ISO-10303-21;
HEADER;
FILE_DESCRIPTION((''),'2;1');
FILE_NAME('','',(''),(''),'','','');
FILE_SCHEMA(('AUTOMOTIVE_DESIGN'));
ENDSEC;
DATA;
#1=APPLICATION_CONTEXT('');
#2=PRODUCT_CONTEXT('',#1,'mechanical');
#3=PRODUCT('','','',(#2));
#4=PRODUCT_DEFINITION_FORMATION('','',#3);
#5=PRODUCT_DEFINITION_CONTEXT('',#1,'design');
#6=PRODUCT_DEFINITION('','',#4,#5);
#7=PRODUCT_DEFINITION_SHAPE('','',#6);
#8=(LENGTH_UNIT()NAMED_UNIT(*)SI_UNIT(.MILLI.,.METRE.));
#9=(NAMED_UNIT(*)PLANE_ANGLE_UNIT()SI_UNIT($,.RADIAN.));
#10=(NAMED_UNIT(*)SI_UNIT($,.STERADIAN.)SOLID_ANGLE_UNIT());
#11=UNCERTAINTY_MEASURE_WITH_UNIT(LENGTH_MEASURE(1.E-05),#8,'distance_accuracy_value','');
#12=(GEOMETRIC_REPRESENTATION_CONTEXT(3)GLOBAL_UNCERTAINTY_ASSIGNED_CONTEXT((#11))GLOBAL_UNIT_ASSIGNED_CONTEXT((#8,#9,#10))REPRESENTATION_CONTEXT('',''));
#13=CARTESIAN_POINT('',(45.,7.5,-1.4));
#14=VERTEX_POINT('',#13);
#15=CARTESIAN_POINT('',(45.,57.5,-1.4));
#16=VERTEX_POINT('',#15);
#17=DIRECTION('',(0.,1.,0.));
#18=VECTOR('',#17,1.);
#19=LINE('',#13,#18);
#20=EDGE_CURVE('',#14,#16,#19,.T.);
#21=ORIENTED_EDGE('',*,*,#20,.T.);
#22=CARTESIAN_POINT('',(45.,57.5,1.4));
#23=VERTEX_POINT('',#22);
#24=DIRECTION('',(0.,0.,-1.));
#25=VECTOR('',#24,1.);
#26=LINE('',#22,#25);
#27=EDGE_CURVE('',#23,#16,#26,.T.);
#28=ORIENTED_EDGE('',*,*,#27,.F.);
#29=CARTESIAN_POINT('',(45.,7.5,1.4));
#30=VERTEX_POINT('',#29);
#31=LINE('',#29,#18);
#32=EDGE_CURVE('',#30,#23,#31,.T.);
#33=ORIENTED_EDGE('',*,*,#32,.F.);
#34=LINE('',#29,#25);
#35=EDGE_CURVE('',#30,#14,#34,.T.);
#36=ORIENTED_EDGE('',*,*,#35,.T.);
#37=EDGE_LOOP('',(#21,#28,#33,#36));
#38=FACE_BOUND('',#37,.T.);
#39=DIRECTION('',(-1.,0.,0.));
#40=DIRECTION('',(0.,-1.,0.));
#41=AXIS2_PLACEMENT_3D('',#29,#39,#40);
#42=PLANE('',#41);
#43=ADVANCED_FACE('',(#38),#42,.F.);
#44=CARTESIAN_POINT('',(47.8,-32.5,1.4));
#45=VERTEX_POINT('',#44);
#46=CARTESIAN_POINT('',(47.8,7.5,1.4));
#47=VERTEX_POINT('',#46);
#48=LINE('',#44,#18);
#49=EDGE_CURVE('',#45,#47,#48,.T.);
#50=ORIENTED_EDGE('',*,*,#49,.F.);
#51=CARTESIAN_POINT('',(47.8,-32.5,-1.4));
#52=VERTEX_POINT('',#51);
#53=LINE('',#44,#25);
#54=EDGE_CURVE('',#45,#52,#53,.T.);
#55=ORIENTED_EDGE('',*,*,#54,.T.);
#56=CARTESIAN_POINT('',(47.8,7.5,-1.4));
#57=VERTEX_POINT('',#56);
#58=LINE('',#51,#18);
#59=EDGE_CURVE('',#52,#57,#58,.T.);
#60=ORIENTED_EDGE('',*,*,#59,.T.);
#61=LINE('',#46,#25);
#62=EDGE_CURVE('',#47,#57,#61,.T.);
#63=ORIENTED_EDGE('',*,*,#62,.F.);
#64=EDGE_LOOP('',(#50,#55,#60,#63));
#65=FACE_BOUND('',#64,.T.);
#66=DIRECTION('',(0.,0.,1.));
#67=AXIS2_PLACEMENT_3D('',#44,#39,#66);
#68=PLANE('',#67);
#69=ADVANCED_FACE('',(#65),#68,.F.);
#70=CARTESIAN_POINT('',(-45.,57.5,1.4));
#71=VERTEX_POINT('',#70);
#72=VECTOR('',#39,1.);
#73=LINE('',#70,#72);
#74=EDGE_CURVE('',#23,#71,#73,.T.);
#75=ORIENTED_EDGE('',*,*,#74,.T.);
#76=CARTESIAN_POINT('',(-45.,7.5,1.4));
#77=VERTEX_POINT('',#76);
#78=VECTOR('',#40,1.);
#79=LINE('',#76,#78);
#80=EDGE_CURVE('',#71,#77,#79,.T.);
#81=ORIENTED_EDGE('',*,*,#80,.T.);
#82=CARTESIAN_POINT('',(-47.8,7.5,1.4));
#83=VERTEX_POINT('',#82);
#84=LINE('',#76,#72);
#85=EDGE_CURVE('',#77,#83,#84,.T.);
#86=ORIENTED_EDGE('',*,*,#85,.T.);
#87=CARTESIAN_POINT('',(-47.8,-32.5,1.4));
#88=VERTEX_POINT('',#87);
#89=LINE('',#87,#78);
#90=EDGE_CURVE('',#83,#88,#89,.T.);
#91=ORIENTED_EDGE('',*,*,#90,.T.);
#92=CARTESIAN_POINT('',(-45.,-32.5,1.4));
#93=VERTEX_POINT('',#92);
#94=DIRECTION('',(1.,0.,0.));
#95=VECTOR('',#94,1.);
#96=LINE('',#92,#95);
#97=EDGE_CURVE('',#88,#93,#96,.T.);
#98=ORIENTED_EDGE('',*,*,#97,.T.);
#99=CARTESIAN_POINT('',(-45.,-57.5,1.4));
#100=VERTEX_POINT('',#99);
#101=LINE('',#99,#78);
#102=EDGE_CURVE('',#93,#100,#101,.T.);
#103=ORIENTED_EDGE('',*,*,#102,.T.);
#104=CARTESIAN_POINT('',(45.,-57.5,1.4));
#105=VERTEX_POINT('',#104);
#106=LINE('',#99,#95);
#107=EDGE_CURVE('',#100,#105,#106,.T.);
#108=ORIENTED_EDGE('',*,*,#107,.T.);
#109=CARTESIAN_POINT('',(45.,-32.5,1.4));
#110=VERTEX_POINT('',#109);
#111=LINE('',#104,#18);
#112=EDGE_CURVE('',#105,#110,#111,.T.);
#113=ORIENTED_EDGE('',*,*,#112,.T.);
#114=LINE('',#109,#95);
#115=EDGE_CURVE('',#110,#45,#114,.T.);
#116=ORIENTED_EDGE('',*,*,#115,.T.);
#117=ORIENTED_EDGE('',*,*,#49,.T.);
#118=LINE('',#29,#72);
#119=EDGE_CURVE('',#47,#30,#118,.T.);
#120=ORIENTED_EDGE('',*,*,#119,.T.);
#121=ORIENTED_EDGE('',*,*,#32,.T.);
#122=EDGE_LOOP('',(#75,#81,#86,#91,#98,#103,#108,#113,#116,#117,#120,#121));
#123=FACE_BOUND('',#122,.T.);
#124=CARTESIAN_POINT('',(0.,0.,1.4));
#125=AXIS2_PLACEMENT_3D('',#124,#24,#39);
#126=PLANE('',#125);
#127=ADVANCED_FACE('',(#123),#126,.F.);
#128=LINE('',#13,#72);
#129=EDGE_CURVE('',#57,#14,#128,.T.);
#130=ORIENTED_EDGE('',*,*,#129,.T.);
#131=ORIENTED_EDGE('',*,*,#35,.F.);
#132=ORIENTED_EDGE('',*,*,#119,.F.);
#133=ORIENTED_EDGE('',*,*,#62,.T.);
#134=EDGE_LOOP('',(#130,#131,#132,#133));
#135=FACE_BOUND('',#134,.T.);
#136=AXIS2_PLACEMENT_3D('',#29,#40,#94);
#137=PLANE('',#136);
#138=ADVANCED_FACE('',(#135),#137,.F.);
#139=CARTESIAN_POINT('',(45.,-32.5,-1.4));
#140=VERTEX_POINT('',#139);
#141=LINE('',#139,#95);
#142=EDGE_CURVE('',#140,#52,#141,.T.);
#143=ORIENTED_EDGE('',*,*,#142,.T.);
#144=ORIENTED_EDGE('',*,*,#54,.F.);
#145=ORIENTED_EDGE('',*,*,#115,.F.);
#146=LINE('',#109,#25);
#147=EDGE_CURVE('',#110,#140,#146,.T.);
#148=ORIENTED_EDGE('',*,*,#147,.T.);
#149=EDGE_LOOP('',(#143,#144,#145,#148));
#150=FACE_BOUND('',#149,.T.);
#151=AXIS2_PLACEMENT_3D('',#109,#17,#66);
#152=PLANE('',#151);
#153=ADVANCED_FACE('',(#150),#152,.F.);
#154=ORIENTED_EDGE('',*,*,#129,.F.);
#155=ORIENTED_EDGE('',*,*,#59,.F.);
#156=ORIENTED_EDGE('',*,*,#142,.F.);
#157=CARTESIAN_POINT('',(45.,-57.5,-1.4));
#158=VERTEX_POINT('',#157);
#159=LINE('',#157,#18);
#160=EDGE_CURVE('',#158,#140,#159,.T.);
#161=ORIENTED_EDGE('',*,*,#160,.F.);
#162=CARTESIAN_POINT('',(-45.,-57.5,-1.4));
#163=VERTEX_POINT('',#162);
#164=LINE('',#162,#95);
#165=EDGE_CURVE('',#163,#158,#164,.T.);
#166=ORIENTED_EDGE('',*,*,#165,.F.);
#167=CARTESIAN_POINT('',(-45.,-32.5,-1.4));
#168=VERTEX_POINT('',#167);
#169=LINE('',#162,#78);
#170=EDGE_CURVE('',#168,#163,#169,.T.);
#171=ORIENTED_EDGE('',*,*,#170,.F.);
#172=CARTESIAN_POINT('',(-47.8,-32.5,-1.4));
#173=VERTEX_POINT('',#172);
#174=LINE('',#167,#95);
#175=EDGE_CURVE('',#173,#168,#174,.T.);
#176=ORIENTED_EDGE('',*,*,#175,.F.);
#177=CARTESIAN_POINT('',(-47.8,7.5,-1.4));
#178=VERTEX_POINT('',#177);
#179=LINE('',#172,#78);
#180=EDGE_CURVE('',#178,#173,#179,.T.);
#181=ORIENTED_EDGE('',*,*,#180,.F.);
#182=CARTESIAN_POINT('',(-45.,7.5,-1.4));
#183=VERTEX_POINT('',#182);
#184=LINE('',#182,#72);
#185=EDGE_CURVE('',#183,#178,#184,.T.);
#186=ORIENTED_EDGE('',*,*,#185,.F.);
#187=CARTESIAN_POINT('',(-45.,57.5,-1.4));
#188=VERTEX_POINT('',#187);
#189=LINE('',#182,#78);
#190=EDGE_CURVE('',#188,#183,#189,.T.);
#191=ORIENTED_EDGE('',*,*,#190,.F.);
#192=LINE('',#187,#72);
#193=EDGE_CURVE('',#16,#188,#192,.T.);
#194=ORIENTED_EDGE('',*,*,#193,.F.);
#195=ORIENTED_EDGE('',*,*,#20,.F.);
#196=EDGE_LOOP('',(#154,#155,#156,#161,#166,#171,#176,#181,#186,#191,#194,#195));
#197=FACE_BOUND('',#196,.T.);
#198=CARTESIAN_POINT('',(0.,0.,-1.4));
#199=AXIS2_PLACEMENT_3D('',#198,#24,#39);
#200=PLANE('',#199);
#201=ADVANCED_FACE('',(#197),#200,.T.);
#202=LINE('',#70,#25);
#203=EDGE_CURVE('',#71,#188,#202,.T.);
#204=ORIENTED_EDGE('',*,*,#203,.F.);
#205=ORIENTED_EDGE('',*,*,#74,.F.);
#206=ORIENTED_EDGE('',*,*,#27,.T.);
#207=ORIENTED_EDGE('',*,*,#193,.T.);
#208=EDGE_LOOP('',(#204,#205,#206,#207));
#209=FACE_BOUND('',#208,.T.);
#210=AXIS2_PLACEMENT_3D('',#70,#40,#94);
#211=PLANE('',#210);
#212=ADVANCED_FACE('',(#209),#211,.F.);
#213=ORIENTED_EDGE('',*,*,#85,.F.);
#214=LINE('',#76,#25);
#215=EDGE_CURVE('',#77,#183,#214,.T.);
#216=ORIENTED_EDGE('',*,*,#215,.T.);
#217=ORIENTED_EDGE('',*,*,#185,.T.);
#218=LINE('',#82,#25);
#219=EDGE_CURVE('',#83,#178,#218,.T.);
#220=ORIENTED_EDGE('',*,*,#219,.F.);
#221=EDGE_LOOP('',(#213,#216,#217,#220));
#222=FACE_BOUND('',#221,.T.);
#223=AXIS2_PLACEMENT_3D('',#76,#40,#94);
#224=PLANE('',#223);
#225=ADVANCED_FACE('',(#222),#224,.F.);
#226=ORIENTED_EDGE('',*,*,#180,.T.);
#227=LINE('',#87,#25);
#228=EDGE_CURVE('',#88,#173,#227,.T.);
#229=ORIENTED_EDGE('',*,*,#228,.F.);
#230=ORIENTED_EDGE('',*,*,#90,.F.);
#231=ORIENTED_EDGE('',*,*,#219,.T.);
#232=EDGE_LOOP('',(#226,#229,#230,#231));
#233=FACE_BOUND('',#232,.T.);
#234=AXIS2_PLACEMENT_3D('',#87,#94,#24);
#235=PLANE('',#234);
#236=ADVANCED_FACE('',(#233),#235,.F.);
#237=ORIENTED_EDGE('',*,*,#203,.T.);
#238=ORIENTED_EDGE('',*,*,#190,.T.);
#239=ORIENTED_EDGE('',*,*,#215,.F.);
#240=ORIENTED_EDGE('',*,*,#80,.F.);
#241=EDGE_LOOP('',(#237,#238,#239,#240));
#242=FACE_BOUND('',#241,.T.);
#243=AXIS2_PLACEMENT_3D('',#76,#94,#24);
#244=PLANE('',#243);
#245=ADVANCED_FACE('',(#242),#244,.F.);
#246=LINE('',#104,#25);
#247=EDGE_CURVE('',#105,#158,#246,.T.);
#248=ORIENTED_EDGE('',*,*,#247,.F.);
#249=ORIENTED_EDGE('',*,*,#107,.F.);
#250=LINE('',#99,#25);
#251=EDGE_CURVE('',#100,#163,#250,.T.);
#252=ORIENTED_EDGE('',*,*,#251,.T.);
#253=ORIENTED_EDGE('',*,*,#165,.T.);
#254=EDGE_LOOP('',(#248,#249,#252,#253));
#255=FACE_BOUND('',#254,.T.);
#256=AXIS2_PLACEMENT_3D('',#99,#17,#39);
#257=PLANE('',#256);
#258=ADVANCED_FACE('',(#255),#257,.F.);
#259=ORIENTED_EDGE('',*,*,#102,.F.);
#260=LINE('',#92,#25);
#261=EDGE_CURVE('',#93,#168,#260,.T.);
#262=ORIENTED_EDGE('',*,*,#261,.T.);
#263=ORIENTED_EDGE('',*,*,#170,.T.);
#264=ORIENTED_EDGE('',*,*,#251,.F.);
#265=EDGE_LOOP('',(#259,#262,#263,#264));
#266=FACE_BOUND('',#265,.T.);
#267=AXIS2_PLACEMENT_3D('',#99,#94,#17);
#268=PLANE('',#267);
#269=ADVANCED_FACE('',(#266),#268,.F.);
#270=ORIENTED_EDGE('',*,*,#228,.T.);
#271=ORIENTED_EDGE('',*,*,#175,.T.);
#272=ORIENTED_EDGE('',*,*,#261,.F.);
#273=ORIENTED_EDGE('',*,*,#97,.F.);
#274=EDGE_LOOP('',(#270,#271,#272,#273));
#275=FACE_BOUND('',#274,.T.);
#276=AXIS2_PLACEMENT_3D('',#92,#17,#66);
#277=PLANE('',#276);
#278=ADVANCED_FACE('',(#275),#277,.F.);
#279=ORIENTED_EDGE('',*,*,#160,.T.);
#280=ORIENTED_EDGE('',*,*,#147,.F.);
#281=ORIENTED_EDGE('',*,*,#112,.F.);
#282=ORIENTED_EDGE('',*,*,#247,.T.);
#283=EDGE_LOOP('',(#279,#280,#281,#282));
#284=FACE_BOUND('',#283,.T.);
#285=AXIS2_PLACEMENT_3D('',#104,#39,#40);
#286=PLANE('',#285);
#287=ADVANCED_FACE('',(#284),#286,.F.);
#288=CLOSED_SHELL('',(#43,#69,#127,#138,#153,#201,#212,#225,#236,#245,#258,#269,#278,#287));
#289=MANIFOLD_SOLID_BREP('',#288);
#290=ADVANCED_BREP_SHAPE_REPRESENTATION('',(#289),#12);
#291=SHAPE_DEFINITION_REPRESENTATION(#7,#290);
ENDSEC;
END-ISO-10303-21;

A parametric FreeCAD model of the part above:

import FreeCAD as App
import Part
import Sketcher
from FreeCAD import Vector


def add_polygon(sketch, points):
    """Adds a closed chain of lines whose ends are joined by coincident constraints."""
    first, n = sketch.GeometryCount, len(points)
    for a, b in zip(points, points[1:] + points[:1]):
        sketch.addGeometry(Part.LineSegment(App.Vector(*a, 0), App.Vector(*b, 0)), False)
    for i in range(n):
        sketch.addConstraint(Sketcher.Constraint("Coincident", first + i, 2, first + (i + 1) % n, 1))

doc = App.newDocument("Part")
params = doc.addObject("Spreadsheet::Sheet", "Params")
for row, (alias, value) in enumerate([
    ("sketch1_width", "90 mm"),
    ("sketch1_height", "50 mm"),
    ("sketch1_height2", "40 mm"),
    ("sketch1_height3", "25 mm"),
    ("sketch1_width2", "2.8 mm"),
    ("pad1_length", "2.8 mm"),
], start=1):
    params.set(f"A{row}", alias)
    params.set(f"B{row}", "=" + value)
    params.setAlias(f"B{row}", alias)

body = doc.addObject("PartDesign::Body", "Body")

# Sketch on XY plane
sketch1 = body.newObject("Sketcher::SketchObject", "Sketch")
sketch1.AttachmentSupport = (doc.getObject("XY_Plane"), [""])
sketch1.MapMode = "FlatFace"
add_polygon(sketch1, [(-45, 57.5), (-45, 7.5), (-47.8, 7.5), (-47.8, -32.5), (-45, -32.5), (-45, -57.5), (45, -57.5), (45, -32.5), (47.8, -32.5), (47.8, 7.5), (45, 7.5), (45, 57.5)])  # lines 0-11
sketch1.addConstraint([
    Sketcher.Constraint("Vertical", 0),
    Sketcher.Constraint("Horizontal", 1),
    Sketcher.Constraint("Vertical", 2),
    Sketcher.Constraint("Horizontal", 3),
    Sketcher.Constraint("Vertical", 4),
    Sketcher.Constraint("Horizontal", 5),
    Sketcher.Constraint("Vertical", 6),
    Sketcher.Constraint("Horizontal", 7),
    Sketcher.Constraint("Vertical", 8),
    Sketcher.Constraint("Horizontal", 9),
    Sketcher.Constraint("Vertical", 10),
    Sketcher.Constraint("Horizontal", 11),
    Sketcher.Constraint("Symmetric", 4, 2, 10, 2, -1, 1),
    Sketcher.Constraint("Symmetric", 3, 2, 6, 2, -2),
    Sketcher.Constraint("Symmetric", 1, 2, 8, 2, -2),
    Sketcher.Constraint("Vertical", 0, 2, 3, 2),
    Sketcher.Constraint("DistanceX", 5, 1, 5, 2, 90.0),
    Sketcher.Constraint("DistanceY", 0, 2, 0, 1, 50.0),
    Sketcher.Constraint("DistanceY", 2, 2, 2, 1, 40.0),
    Sketcher.Constraint("DistanceY", 4, 2, 4, 1, 25.0),
    Sketcher.Constraint("DistanceX", 1, 2, 1, 1, 2.8),
])
sketch1.setExpression("Constraints[28]", "Params.sketch1_width")
sketch1.setExpression("Constraints[29]", "Params.sketch1_height")
sketch1.setExpression("Constraints[30]", "Params.sketch1_height2")
sketch1.setExpression("Constraints[31]", "Params.sketch1_height3")
sketch1.setExpression("Constraints[32]", "Params.sketch1_width2")
pad1 = body.newObject("PartDesign::Pad", "Pad")
pad1.Profile = sketch1
pad1.setExpression("Length", "Params.pad1_length")
pad1.Midplane = True

doc.recompute()
